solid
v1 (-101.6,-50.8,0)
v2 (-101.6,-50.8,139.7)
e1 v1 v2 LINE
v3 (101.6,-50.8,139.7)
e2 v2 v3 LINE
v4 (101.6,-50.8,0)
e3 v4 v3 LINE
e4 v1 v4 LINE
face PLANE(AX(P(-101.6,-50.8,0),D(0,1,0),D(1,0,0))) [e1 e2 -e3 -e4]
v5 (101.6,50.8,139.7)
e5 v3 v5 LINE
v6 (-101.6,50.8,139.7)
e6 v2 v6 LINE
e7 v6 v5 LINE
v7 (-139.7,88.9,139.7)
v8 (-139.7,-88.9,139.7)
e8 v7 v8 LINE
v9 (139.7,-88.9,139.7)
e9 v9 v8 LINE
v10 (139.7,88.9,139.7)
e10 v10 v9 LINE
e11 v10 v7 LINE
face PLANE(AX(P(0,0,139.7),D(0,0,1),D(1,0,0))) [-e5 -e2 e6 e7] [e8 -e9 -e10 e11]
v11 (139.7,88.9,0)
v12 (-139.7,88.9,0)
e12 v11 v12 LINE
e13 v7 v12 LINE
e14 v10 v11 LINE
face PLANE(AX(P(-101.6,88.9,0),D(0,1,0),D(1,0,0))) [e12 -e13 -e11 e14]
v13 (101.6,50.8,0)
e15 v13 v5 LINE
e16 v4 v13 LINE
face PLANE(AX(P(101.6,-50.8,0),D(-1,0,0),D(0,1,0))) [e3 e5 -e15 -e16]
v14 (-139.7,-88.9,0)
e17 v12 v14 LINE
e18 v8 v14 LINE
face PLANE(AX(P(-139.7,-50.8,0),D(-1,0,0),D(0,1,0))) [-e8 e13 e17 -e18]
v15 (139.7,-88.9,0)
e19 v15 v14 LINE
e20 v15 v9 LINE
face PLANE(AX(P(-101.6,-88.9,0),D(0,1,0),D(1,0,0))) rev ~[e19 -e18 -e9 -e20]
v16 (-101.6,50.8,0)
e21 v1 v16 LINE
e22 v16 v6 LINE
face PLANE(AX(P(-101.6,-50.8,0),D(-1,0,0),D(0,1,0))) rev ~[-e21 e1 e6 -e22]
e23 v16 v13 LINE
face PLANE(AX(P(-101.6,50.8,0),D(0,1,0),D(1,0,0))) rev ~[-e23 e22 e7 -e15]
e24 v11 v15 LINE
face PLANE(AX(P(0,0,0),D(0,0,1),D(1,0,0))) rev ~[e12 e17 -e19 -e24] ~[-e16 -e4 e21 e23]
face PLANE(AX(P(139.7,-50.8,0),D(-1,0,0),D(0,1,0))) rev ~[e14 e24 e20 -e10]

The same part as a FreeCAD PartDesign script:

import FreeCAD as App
import Part
import Sketcher
from FreeCAD import Vector
Q = App.Units.Quantity


def faces_at(feature, points):
    """Names of the faces that lie closest to the given points."""
    faces = feature.Shape.Faces
    near = lambda p: min(range(len(faces)), key=lambda i: faces[i].distToShape(Part.Vertex(*p))[0])
    return sorted({f"Face{near(p) + 1}" for p in points})


def add_polygon(sketch, points):
    """Adds a closed chain of lines whose ends are joined by coincident constraints."""
    first, n = sketch.GeometryCount, len(points)
    for a, b in zip(points, points[1:] + points[:1]):
        sketch.addGeometry(Part.LineSegment(App.Vector(*a, 0), App.Vector(*b, 0)), False)
    for i in range(n):
        sketch.addConstraint(Sketcher.Constraint("Coincident", first + i, 2, first + (i + 1) % n, 1))

doc = App.newDocument("Part")
body = doc.addObject("PartDesign::Body", "Body")

sketch1 = doc.addObject("Sketcher::SketchObject", "Sketch")
body.addObject(sketch1)
sketch1.AttachmentSupport = (doc.XY_Plane, [""])
sketch1.MapMode = "FlatFace"
add_polygon(sketch1, [(-102, 51), (-102, -51), (102, -51), (102, 51)])
sketch1.addConstraint(Sketcher.Constraint("Vertical", 0))
sketch1.addConstraint(Sketcher.Constraint("Horizontal", 1))
sketch1.addConstraint(Sketcher.Constraint("Vertical", 2))
sketch1.addConstraint(Sketcher.Constraint("Horizontal", 3))
sketch1.addConstraint(Sketcher.Constraint("Symmetric", 0, 2, 2, 2, -1, 1))
sketch1.addConstraint(Sketcher.Constraint("DistanceX", 1, 1, 1, 2, Q("8 in")))
sketch1.addConstraint(Sketcher.Constraint("DistanceY", 0, 2, 0, 1, Q("4 in")))
pad1 = doc.addObject("PartDesign::Pad", "Pad")
body.addObject(pad1)
pad1.Profile = sketch1
pad1.Length = Q("5.5 in")
doc.recompute()

thickness = doc.addObject("PartDesign::Thickness", "Thickness")
body.addObject(thickness)
thickness.Base = (pad1, faces_at(pad1, [(0, 0, 139.7), (0, 0, 0)]))
thickness.Value = Q("1.5 in")
thickness.Reversed = False
thickness.Join = "Intersection"

doc.recompute()
